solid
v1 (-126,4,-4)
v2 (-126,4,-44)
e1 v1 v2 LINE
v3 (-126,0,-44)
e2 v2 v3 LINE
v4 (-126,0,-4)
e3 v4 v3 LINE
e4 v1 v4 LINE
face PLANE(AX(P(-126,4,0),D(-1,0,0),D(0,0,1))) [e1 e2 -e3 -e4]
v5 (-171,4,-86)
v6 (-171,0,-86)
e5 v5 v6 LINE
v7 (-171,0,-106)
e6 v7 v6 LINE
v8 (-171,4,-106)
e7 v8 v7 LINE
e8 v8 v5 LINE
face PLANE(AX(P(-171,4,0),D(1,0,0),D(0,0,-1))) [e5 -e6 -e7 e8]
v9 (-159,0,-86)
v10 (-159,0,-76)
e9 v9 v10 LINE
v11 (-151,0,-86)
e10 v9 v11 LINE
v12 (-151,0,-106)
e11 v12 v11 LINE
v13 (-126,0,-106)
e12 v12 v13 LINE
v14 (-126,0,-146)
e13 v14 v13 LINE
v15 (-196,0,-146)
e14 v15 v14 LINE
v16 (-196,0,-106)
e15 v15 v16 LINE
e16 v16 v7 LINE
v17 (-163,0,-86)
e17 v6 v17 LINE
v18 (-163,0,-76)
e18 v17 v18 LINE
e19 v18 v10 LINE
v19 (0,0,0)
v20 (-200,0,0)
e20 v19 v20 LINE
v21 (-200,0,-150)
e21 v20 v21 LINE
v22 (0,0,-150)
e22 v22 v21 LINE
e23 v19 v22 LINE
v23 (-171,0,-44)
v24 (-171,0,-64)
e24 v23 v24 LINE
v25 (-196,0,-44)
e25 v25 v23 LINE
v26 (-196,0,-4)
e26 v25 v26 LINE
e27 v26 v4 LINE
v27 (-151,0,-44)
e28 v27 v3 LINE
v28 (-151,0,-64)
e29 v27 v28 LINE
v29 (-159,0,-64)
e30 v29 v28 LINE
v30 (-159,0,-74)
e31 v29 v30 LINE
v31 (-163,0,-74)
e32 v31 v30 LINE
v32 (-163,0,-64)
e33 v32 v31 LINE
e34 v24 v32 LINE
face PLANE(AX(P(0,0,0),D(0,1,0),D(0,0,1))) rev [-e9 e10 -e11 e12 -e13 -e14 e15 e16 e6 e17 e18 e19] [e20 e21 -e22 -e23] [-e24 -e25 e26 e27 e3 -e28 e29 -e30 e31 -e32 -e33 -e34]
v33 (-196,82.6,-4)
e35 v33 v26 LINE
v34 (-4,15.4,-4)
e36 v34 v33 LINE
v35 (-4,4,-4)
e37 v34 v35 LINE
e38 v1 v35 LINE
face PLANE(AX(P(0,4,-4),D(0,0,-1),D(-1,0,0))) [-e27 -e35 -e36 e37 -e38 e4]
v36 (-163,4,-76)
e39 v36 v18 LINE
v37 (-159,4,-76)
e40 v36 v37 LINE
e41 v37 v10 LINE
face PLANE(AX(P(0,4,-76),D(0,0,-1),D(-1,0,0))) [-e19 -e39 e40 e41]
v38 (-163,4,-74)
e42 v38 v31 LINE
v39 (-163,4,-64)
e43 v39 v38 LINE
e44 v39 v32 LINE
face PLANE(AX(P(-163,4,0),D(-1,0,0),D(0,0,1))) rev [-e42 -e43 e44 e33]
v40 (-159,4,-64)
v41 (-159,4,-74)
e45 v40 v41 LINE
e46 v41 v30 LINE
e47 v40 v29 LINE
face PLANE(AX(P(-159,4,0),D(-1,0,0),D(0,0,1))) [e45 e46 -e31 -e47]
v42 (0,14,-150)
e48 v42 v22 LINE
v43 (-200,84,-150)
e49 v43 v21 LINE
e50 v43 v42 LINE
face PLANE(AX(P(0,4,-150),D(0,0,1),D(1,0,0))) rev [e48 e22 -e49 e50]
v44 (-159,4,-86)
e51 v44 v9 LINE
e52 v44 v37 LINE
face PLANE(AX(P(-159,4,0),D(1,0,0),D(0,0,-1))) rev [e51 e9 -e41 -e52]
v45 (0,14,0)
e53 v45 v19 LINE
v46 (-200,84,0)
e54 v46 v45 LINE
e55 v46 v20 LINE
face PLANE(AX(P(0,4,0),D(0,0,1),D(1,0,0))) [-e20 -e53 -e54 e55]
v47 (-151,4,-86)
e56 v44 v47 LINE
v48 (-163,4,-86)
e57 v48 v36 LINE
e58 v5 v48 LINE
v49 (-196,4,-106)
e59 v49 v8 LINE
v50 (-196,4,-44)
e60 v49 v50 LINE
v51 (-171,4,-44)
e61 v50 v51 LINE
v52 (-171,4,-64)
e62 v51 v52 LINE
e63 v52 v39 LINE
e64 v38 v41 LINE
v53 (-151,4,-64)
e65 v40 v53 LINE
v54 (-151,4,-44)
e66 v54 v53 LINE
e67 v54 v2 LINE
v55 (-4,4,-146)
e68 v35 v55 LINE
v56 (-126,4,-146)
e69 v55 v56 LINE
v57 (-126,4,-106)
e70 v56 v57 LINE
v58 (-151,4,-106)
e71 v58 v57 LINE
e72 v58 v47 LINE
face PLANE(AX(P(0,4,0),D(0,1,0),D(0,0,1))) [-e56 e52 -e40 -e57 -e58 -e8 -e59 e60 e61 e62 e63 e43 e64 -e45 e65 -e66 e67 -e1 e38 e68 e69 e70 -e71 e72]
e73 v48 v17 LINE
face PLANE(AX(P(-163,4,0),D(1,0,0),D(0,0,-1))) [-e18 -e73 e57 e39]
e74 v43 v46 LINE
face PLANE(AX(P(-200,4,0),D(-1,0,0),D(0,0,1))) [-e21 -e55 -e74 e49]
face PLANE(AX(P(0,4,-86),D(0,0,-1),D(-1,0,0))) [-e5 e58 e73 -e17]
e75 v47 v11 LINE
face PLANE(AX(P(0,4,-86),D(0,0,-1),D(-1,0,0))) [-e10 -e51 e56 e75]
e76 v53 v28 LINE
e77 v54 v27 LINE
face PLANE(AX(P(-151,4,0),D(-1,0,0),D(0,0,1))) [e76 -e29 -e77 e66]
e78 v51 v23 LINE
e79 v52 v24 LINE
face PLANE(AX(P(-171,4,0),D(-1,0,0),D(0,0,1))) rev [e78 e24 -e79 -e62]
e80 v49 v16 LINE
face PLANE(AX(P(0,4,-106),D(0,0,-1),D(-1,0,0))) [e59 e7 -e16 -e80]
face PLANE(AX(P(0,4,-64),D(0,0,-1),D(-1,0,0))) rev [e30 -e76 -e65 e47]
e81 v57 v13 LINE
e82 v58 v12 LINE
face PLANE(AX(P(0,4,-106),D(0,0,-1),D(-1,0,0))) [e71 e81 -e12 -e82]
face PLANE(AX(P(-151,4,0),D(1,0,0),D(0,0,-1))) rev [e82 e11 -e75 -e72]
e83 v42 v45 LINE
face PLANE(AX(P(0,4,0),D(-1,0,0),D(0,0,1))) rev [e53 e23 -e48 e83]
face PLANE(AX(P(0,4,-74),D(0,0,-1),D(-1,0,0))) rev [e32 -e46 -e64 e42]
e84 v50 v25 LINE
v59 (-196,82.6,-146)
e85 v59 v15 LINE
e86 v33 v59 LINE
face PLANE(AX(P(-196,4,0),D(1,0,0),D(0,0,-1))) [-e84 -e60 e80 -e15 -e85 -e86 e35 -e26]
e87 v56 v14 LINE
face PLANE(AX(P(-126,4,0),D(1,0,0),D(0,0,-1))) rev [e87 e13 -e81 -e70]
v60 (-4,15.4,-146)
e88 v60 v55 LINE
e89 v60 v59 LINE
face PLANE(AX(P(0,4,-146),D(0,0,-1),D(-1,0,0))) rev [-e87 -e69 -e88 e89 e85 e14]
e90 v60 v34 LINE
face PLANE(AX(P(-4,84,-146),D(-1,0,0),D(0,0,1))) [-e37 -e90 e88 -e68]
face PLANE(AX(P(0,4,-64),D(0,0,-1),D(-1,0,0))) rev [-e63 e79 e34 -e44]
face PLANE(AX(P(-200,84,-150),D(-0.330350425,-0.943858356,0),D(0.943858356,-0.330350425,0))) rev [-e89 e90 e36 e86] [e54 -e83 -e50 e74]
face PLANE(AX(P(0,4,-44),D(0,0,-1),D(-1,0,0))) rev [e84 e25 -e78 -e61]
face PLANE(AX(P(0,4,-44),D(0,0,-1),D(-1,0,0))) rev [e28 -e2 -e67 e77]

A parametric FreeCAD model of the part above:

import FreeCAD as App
import Part
import Sketcher
Q = App.Units.Quantity

doc = App.newDocument("Part")
params = doc.addObject("Spreadsheet::Sheet", "Params")
for row, (alias, value) in enumerate([
    ("sketch1_width", "200 mm"),
    ("sketch1_width2", "70 mm"),
    ("sketch1_width3", "25 mm"),
    ("sketch1_width4", "8 mm"),
    ("sketch1_height", "150 mm"),
    ("pad1_length", "4 mm"),
    ("sketch2_width", "200 mm"),
    ("sketch2_width2", "192 mm"),
    ("sketch2_height", "150 mm"),
    ("sketch2_height2", "142 mm"),
    ("pad2_length", "80 mm"),
    ("sketch3_width", "200 mm"),
    ("sketch3_height", "70 mm"),
    ("pocket1_length", "150 mm"),
], start=1):
    params.set(f"A{row}", alias)
    params.set(f"B{row}", "=" + value)
    params.setAlias(f"B{row}", alias)

body = doc.addObject("PartDesign::Body", "Body")

# Sketch on XZ plane
sketch1 = doc.addObject("Sketcher::SketchObject", "Sketch")
body.addObject(sketch1)
sketch1.AttachmentSupport = (doc.XZ_Plane, [""])
sketch1.MapMode = "FlatFace"
sketch1.addGeometry([
    Part.LineSegment(App.Vector(-200, -150, 0), App.Vector(-200, 0, 0)),  # 0
    Part.LineSegment(App.Vector(-200, 0, 0), App.Vector(0, 0, 0)),  # 1
    Part.LineSegment(App.Vector(0, 0, 0), App.Vector(0, -150, 0)),  # 2
    Part.LineSegment(App.Vector(0, -150, 0), App.Vector(-200, -150, 0)),  # 3
    Part.LineSegment(App.Vector(-126, -4, 0), App.Vector(-196, -4, 0)),  # 4
    Part.LineSegment(App.Vector(-196, -4, 0), App.Vector(-196, -44, 0)),  # 5
    Part.LineSegment(App.Vector(-196, -44, 0), App.Vector(-171, -44, 0)),  # 6
    Part.LineSegment(App.Vector(-171, -44, 0), App.Vector(-171, -64, 0)),  # 7
    Part.LineSegment(App.Vector(-171, -64, 0), App.Vector(-163, -64, 0)),  # 8
    Part.LineSegment(App.Vector(-163, -64, 0), App.Vector(-163, -74, 0)),  # 9
    Part.LineSegment(App.Vector(-163, -74, 0), App.Vector(-159, -74, 0)),  # 10
    Part.LineSegment(App.Vector(-159, -74, 0), App.Vector(-159, -64, 0)),  # 11
    Part.LineSegment(App.Vector(-159, -64, 0), App.Vector(-151, -64, 0)),  # 12
    Part.LineSegment(App.Vector(-151, -64, 0), App.Vector(-151, -44, 0)),  # 13
    Part.LineSegment(App.Vector(-151, -44, 0), App.Vector(-126, -44, 0)),  # 14
    Part.LineSegment(App.Vector(-126, -44, 0), App.Vector(-126, -4, 0)),  # 15
    Part.LineSegment(App.Vector(-196, -146, 0), App.Vector(-126, -146, 0)),  # 16
    Part.LineSegment(App.Vector(-126, -146, 0), App.Vector(-126, -106, 0)),  # 17
    Part.LineSegment(App.Vector(-126, -106, 0), App.Vector(-151, -106, 0)),  # 18
    Part.LineSegment(App.Vector(-151, -106, 0), App.Vector(-151, -86, 0)),  # 19
    Part.LineSegment(App.Vector(-151, -86, 0), App.Vector(-159, -86, 0)),  # 20
    Part.LineSegment(App.Vector(-159, -86, 0), App.Vector(-159, -76, 0)),  # 21
    Part.LineSegment(App.Vector(-159, -76, 0), App.Vector(-163, -76, 0)),  # 22
    Part.LineSegment(App.Vector(-163, -76, 0), App.Vector(-163, -86, 0)),  # 23
    Part.LineSegment(App.Vector(-163, -86, 0), App.Vector(-171, -86, 0)),  # 24
    Part.LineSegment(App.Vector(-171, -86, 0), App.Vector(-171, -106, 0)),  # 25
    Part.LineSegment(App.Vector(-171, -106, 0), App.Vector(-196, -106, 0)),  # 26
    Part.LineSegment(App.Vector(-196, -106, 0), App.Vector(-196, -146, 0)),  # 27
], False)
sketch1.addConstraint([
    Sketcher.Constraint("Coincident", 0, 2, 1, 1),
    Sketcher.Constraint("Coincident", 1, 2, 2, 1),
    Sketcher.Constraint("Coincident", 2, 2, 3, 1),
    Sketcher.Constraint("Coincident", 3, 2, 0, 1),
    Sketcher.Constraint("Coincident", 4, 2, 5, 1),
    Sketcher.Constraint("Coincident", 5, 2, 6, 1),
    Sketcher.Constraint("Coincident", 6, 2, 7, 1),
    Sketcher.Constraint("Coincident", 7, 2, 8, 1),
    Sketcher.Constraint("Coincident", 8, 2, 9, 1),
    Sketcher.Constraint("Coincident", 9, 2, 10, 1),
    Sketcher.Constraint("Coincident", 10, 2, 11, 1),
    Sketcher.Constraint("Coincident", 11, 2, 12, 1),
    Sketcher.Constraint("Coincident", 12, 2, 13, 1),
    Sketcher.Constraint("Coincident", 13, 2, 14, 1),
    Sketcher.Constraint("Coincident", 14, 2, 15, 1),
    Sketcher.Constraint("Coincident", 15, 2, 4, 1),
    Sketcher.Constraint("Coincident", 16, 2, 17, 1),
    Sketcher.Constraint("Coincident", 17, 2, 18, 1),
    Sketcher.Constraint("Coincident", 18, 2, 19, 1),
    Sketcher.Constraint("Coincident", 19, 2, 20, 1),
    Sketcher.Constraint("Coincident", 20, 2, 21, 1),
    Sketcher.Constraint("Coincident", 21, 2, 22, 1),
    Sketcher.Constraint("Coincident", 22, 2, 23, 1),
    Sketcher.Constraint("Coincident", 23, 2, 24, 1),
    Sketcher.Constraint("Coincident", 24, 2, 25, 1),
    Sketcher.Constraint("Coincident", 25, 2, 26, 1),
    Sketcher.Constraint("Coincident", 26, 2, 27, 1),
    Sketcher.Constraint("Coincident", 27, 2, 16, 1),
    Sketcher.Constraint("Vertical", 0),
    Sketcher.Constraint("Horizontal", 1),
    Sketcher.Constraint("Vertical", 2),
    Sketcher.Constraint("Horizontal", 3),
    Sketcher.Constraint("Horizontal", 4),
    Sketcher.Constraint("Vertical", 5),
    Sketcher.Constraint("Horizontal", 6),
    Sketcher.Constraint("Vertical", 7),
    Sketcher.Constraint("Horizontal", 8),
    Sketcher.Constraint("Vertical", 9),
    Sketcher.Constraint("Horizontal", 10),
    Sketcher.Constraint("Vertical", 11),
    Sketcher.Constraint("Horizontal", 12),
    Sketcher.Constraint("Vertical", 13),
    Sketcher.Constraint("Horizontal", 14),
    Sketcher.Constraint("Vertical", 15),
    Sketcher.Constraint("Horizontal", 16),
    Sketcher.Constraint("Vertical", 17),
    Sketcher.Constraint("Horizontal", 18),
    Sketcher.Constraint("Vertical", 19),
    Sketcher.Constraint("Horizontal", 20),
    Sketcher.Constraint("Vertical", 21),
    Sketcher.Constraint("Horizontal", 22),
    Sketcher.Constraint("Vertical", 23),
    Sketcher.Constraint("Horizontal", 24),
    Sketcher.Constraint("Vertical", 25),
    Sketcher.Constraint("Horizontal", 26),
    Sketcher.Constraint("Vertical", 27),
    Sketcher.Constraint("Coincident", 1, 2, -1, 1),
    Sketcher.Constraint("Horizontal", 8, 2, 11, 2),
    Sketcher.Constraint("Horizontal", 6, 2, 13, 2),
    Sketcher.Constraint("Horizontal", 20, 2, 23, 2),
    Sketcher.Constraint("Horizontal", 18, 2, 25, 2),
    Sketcher.Constraint("Vertical", 15, 2, 16, 2),
    Sketcher.Constraint("Vertical", 13, 2, 18, 2),
    Sketcher.Constraint("Vertical", 11, 2, 20, 2),
    Sketcher.Constraint("Vertical", 9, 2, 22, 2),
    Sketcher.Constraint("Vertical", 7, 2, 24, 2),
    Sketcher.Constraint("Vertical", 5, 2, 26, 2),
    Sketcher.Constraint("Equal", 8, 12),
    Sketcher.Constraint("Equal", 6, 14),
    Sketcher.Constraint("Equal", 15, 17),
    Sketcher.Constraint("Equal", 13, 19),
    Sketcher.Constraint("Equal", 11, 21),
    Sketcher.Constraint("DistanceX", 1, 1, 1, 2, Q("200 mm")),
    Sketcher.Constraint("DistanceX", 4, 2, 4, 1, Q("70 mm")),
    Sketcher.Constraint("DistanceX", 6, 1, 6, 2, Q("25 mm")),
    Sketcher.Constraint("DistanceX", 8, 1, 8, 2, Q("8 mm")),
    Sketcher.Constraint("DistanceY", 0, 1, 0, 2, Q("150 mm")),
    Sketcher.Constraint("DistanceY", 5, 2, 5, 1, Q("40 mm")),
    Sketcher.Constraint("DistanceY", 7, 2, 7, 1, Q("20 mm")),
    Sketcher.Constraint("DistanceY", 9, 2, 9, 1, Q("10 mm")),
    Sketcher.Constraint("DistanceX", 4, 2, -1, 1, Q("196 mm")),
    Sketcher.Constraint("DistanceY", 4, 2, -1, 1, Q("4 mm")),
    Sketcher.Constraint("DistanceY", 16, 2, -1, 1, Q("146 mm")),
])
sketch1.setExpression("Constraints[72]", "Params.sketch1_width")
sketch1.setExpression("Constraints[73]", "Params.sketch1_width2")
sketch1.setExpression("Constraints[74]", "Params.sketch1_width3")
sketch1.setExpression("Constraints[75]", "Params.sketch1_width4")
sketch1.setExpression("Constraints[76]", "Params.sketch1_height")
pad1 = doc.addObject("PartDesign::Pad", "Pad")
body.addObject(pad1)
pad1.Profile = sketch1
pad1.setExpression("Length", "Params.pad1_length")
pad1.Reversed = True

# Sketch on XZ plane
sketch2 = doc.addObject("Sketcher::SketchObject", "Sketch001")
body.addObject(sketch2)
sketch2.AttachmentSupport = (doc.XZ_Plane, [""])
sketch2.MapMode = "FlatFace"
sketch2.AttachmentOffset = App.Placement(App.Vector(0, 0, -4), App.Rotation())
sketch2.addGeometry([
    Part.LineSegment(App.Vector(-200, -150, 0), App.Vector(-200, 0, 0)),  # 0
    Part.LineSegment(App.Vector(-200, 0, 0), App.Vector(0, 0, 0)),  # 1
    Part.LineSegment(App.Vector(0, 0, 0), App.Vector(0, -150, 0)),  # 2
    Part.LineSegment(App.Vector(0, -150, 0), App.Vector(-200, -150, 0)),  # 3
    Part.LineSegment(App.Vector(-4, -4, 0), App.Vector(-196, -4, 0)),  # 4
    Part.LineSegment(App.Vector(-196, -4, 0), App.Vector(-196, -146, 0)),  # 5
    Part.LineSegment(App.Vector(-196, -146, 0), App.Vector(-4, -146, 0)),  # 6
    Part.LineSegment(App.Vector(-4, -146, 0), App.Vector(-4, -4, 0)),  # 7
], False)
sketch2.addConstraint([
    Sketcher.Constraint("Coincident", 0, 2, 1, 1),
    Sketcher.Constraint("Coincident", 1, 2, 2, 1),
    Sketcher.Constraint("Coincident", 2, 2, 3, 1),
    Sketcher.Constraint("Coincident", 3, 2, 0, 1),
    Sketcher.Constraint("Coincident", 4, 2, 5, 1),
    Sketcher.Constraint("Coincident", 5, 2, 6, 1),
    Sketcher.Constraint("Coincident", 6, 2, 7, 1),
    Sketcher.Constraint("Coincident", 7, 2, 4, 1),
    Sketcher.Constraint("Vertical", 0),
    Sketcher.Constraint("Horizontal", 1),
    Sketcher.Constraint("Vertical", 2),
    Sketcher.Constraint("Horizontal", 3),
    Sketcher.Constraint("Horizontal", 4),
    Sketcher.Constraint("Vertical", 5),
    Sketcher.Constraint("Horizontal", 6),
    Sketcher.Constraint("Vertical", 7),
    Sketcher.Constraint("Coincident", 1, 2, -1, 1),
    Sketcher.Constraint("DistanceX", 1, 1, 1, 2, Q("200 mm")),
    Sketcher.Constraint("DistanceX", 4, 2, 4, 1, Q("192 mm")),
    Sketcher.Constraint("DistanceY", 0, 1, 0, 2, Q("150 mm")),
    Sketcher.Constraint("DistanceY", 5, 2, 5, 1, Q("142 mm")),
    Sketcher.Constraint("DistanceX", 4, 2, -1, 1, Q("196 mm")),
    Sketcher.Constraint("DistanceY", 4, 2, -1, 1, Q("4 mm")),
])
sketch2.setExpression("Constraints[17]", "Params.sketch2_width")
sketch2.setExpression("Constraints[18]", "Params.sketch2_width2")
sketch2.setExpression("Constraints[19]", "Params.sketch2_height")
sketch2.setExpression("Constraints[20]", "Params.sketch2_height2")
pad2 = doc.addObject("PartDesign::Pad", "Pad001")
body.addObject(pad2)
pad2.Profile = sketch2
pad2.setExpression("Length", "Params.pad2_length")
pad2.Reversed = True

# Sketch on XY plane
sketch3 = doc.addObject("Sketcher::SketchObject", "Sketch002")
body.addObject(sketch3)
sketch3.AttachmentSupport = (doc.XY_Plane, [""])
sketch3.MapMode = "FlatFace"
sketch3.addGeometry([
    Part.LineSegment(App.Vector(-200, 84, 0), App.Vector(0, 14, 0)),
    Part.LineSegment(App.Vector(0, 14, 0), App.Vector(0, 84, 0)),
    Part.LineSegment(App.Vector(0, 84, 0), App.Vector(-200, 84, 0)),
], False)
sketch3.addConstraint([
    Sketcher.Constraint("Coincident", 0, 2, 1, 1),
    Sketcher.Constraint("Coincident", 1, 2, 2, 1),
    Sketcher.Constraint("Coincident", 2, 2, 0, 1),
    Sketcher.Constraint("Vertical", 1),
    Sketcher.Constraint("Horizontal", 2),
    Sketcher.Constraint("PointOnObject", 0, 2, -2),
    Sketcher.Constraint("DistanceX", 2, 2, 2, 1, Q("200 mm")),
    Sketcher.Constraint("DistanceY", 1, 1, 1, 2, Q("70 mm")),
    Sketcher.Constraint("DistanceY", -1, 1, 0, 2, Q("14 mm")),
])
sketch3.setExpression("Constraints[6]", "Params.sketch3_width")
sketch3.setExpression("Constraints[7]", "Params.sketch3_height")
pocket1 = doc.addObject("PartDesign::Pocket", "Pocket")
body.addObject(pocket1)
pocket1.Profile = sketch3
pocket1.setExpression("Length", "Params.pocket1_length")

doc.recompute()
